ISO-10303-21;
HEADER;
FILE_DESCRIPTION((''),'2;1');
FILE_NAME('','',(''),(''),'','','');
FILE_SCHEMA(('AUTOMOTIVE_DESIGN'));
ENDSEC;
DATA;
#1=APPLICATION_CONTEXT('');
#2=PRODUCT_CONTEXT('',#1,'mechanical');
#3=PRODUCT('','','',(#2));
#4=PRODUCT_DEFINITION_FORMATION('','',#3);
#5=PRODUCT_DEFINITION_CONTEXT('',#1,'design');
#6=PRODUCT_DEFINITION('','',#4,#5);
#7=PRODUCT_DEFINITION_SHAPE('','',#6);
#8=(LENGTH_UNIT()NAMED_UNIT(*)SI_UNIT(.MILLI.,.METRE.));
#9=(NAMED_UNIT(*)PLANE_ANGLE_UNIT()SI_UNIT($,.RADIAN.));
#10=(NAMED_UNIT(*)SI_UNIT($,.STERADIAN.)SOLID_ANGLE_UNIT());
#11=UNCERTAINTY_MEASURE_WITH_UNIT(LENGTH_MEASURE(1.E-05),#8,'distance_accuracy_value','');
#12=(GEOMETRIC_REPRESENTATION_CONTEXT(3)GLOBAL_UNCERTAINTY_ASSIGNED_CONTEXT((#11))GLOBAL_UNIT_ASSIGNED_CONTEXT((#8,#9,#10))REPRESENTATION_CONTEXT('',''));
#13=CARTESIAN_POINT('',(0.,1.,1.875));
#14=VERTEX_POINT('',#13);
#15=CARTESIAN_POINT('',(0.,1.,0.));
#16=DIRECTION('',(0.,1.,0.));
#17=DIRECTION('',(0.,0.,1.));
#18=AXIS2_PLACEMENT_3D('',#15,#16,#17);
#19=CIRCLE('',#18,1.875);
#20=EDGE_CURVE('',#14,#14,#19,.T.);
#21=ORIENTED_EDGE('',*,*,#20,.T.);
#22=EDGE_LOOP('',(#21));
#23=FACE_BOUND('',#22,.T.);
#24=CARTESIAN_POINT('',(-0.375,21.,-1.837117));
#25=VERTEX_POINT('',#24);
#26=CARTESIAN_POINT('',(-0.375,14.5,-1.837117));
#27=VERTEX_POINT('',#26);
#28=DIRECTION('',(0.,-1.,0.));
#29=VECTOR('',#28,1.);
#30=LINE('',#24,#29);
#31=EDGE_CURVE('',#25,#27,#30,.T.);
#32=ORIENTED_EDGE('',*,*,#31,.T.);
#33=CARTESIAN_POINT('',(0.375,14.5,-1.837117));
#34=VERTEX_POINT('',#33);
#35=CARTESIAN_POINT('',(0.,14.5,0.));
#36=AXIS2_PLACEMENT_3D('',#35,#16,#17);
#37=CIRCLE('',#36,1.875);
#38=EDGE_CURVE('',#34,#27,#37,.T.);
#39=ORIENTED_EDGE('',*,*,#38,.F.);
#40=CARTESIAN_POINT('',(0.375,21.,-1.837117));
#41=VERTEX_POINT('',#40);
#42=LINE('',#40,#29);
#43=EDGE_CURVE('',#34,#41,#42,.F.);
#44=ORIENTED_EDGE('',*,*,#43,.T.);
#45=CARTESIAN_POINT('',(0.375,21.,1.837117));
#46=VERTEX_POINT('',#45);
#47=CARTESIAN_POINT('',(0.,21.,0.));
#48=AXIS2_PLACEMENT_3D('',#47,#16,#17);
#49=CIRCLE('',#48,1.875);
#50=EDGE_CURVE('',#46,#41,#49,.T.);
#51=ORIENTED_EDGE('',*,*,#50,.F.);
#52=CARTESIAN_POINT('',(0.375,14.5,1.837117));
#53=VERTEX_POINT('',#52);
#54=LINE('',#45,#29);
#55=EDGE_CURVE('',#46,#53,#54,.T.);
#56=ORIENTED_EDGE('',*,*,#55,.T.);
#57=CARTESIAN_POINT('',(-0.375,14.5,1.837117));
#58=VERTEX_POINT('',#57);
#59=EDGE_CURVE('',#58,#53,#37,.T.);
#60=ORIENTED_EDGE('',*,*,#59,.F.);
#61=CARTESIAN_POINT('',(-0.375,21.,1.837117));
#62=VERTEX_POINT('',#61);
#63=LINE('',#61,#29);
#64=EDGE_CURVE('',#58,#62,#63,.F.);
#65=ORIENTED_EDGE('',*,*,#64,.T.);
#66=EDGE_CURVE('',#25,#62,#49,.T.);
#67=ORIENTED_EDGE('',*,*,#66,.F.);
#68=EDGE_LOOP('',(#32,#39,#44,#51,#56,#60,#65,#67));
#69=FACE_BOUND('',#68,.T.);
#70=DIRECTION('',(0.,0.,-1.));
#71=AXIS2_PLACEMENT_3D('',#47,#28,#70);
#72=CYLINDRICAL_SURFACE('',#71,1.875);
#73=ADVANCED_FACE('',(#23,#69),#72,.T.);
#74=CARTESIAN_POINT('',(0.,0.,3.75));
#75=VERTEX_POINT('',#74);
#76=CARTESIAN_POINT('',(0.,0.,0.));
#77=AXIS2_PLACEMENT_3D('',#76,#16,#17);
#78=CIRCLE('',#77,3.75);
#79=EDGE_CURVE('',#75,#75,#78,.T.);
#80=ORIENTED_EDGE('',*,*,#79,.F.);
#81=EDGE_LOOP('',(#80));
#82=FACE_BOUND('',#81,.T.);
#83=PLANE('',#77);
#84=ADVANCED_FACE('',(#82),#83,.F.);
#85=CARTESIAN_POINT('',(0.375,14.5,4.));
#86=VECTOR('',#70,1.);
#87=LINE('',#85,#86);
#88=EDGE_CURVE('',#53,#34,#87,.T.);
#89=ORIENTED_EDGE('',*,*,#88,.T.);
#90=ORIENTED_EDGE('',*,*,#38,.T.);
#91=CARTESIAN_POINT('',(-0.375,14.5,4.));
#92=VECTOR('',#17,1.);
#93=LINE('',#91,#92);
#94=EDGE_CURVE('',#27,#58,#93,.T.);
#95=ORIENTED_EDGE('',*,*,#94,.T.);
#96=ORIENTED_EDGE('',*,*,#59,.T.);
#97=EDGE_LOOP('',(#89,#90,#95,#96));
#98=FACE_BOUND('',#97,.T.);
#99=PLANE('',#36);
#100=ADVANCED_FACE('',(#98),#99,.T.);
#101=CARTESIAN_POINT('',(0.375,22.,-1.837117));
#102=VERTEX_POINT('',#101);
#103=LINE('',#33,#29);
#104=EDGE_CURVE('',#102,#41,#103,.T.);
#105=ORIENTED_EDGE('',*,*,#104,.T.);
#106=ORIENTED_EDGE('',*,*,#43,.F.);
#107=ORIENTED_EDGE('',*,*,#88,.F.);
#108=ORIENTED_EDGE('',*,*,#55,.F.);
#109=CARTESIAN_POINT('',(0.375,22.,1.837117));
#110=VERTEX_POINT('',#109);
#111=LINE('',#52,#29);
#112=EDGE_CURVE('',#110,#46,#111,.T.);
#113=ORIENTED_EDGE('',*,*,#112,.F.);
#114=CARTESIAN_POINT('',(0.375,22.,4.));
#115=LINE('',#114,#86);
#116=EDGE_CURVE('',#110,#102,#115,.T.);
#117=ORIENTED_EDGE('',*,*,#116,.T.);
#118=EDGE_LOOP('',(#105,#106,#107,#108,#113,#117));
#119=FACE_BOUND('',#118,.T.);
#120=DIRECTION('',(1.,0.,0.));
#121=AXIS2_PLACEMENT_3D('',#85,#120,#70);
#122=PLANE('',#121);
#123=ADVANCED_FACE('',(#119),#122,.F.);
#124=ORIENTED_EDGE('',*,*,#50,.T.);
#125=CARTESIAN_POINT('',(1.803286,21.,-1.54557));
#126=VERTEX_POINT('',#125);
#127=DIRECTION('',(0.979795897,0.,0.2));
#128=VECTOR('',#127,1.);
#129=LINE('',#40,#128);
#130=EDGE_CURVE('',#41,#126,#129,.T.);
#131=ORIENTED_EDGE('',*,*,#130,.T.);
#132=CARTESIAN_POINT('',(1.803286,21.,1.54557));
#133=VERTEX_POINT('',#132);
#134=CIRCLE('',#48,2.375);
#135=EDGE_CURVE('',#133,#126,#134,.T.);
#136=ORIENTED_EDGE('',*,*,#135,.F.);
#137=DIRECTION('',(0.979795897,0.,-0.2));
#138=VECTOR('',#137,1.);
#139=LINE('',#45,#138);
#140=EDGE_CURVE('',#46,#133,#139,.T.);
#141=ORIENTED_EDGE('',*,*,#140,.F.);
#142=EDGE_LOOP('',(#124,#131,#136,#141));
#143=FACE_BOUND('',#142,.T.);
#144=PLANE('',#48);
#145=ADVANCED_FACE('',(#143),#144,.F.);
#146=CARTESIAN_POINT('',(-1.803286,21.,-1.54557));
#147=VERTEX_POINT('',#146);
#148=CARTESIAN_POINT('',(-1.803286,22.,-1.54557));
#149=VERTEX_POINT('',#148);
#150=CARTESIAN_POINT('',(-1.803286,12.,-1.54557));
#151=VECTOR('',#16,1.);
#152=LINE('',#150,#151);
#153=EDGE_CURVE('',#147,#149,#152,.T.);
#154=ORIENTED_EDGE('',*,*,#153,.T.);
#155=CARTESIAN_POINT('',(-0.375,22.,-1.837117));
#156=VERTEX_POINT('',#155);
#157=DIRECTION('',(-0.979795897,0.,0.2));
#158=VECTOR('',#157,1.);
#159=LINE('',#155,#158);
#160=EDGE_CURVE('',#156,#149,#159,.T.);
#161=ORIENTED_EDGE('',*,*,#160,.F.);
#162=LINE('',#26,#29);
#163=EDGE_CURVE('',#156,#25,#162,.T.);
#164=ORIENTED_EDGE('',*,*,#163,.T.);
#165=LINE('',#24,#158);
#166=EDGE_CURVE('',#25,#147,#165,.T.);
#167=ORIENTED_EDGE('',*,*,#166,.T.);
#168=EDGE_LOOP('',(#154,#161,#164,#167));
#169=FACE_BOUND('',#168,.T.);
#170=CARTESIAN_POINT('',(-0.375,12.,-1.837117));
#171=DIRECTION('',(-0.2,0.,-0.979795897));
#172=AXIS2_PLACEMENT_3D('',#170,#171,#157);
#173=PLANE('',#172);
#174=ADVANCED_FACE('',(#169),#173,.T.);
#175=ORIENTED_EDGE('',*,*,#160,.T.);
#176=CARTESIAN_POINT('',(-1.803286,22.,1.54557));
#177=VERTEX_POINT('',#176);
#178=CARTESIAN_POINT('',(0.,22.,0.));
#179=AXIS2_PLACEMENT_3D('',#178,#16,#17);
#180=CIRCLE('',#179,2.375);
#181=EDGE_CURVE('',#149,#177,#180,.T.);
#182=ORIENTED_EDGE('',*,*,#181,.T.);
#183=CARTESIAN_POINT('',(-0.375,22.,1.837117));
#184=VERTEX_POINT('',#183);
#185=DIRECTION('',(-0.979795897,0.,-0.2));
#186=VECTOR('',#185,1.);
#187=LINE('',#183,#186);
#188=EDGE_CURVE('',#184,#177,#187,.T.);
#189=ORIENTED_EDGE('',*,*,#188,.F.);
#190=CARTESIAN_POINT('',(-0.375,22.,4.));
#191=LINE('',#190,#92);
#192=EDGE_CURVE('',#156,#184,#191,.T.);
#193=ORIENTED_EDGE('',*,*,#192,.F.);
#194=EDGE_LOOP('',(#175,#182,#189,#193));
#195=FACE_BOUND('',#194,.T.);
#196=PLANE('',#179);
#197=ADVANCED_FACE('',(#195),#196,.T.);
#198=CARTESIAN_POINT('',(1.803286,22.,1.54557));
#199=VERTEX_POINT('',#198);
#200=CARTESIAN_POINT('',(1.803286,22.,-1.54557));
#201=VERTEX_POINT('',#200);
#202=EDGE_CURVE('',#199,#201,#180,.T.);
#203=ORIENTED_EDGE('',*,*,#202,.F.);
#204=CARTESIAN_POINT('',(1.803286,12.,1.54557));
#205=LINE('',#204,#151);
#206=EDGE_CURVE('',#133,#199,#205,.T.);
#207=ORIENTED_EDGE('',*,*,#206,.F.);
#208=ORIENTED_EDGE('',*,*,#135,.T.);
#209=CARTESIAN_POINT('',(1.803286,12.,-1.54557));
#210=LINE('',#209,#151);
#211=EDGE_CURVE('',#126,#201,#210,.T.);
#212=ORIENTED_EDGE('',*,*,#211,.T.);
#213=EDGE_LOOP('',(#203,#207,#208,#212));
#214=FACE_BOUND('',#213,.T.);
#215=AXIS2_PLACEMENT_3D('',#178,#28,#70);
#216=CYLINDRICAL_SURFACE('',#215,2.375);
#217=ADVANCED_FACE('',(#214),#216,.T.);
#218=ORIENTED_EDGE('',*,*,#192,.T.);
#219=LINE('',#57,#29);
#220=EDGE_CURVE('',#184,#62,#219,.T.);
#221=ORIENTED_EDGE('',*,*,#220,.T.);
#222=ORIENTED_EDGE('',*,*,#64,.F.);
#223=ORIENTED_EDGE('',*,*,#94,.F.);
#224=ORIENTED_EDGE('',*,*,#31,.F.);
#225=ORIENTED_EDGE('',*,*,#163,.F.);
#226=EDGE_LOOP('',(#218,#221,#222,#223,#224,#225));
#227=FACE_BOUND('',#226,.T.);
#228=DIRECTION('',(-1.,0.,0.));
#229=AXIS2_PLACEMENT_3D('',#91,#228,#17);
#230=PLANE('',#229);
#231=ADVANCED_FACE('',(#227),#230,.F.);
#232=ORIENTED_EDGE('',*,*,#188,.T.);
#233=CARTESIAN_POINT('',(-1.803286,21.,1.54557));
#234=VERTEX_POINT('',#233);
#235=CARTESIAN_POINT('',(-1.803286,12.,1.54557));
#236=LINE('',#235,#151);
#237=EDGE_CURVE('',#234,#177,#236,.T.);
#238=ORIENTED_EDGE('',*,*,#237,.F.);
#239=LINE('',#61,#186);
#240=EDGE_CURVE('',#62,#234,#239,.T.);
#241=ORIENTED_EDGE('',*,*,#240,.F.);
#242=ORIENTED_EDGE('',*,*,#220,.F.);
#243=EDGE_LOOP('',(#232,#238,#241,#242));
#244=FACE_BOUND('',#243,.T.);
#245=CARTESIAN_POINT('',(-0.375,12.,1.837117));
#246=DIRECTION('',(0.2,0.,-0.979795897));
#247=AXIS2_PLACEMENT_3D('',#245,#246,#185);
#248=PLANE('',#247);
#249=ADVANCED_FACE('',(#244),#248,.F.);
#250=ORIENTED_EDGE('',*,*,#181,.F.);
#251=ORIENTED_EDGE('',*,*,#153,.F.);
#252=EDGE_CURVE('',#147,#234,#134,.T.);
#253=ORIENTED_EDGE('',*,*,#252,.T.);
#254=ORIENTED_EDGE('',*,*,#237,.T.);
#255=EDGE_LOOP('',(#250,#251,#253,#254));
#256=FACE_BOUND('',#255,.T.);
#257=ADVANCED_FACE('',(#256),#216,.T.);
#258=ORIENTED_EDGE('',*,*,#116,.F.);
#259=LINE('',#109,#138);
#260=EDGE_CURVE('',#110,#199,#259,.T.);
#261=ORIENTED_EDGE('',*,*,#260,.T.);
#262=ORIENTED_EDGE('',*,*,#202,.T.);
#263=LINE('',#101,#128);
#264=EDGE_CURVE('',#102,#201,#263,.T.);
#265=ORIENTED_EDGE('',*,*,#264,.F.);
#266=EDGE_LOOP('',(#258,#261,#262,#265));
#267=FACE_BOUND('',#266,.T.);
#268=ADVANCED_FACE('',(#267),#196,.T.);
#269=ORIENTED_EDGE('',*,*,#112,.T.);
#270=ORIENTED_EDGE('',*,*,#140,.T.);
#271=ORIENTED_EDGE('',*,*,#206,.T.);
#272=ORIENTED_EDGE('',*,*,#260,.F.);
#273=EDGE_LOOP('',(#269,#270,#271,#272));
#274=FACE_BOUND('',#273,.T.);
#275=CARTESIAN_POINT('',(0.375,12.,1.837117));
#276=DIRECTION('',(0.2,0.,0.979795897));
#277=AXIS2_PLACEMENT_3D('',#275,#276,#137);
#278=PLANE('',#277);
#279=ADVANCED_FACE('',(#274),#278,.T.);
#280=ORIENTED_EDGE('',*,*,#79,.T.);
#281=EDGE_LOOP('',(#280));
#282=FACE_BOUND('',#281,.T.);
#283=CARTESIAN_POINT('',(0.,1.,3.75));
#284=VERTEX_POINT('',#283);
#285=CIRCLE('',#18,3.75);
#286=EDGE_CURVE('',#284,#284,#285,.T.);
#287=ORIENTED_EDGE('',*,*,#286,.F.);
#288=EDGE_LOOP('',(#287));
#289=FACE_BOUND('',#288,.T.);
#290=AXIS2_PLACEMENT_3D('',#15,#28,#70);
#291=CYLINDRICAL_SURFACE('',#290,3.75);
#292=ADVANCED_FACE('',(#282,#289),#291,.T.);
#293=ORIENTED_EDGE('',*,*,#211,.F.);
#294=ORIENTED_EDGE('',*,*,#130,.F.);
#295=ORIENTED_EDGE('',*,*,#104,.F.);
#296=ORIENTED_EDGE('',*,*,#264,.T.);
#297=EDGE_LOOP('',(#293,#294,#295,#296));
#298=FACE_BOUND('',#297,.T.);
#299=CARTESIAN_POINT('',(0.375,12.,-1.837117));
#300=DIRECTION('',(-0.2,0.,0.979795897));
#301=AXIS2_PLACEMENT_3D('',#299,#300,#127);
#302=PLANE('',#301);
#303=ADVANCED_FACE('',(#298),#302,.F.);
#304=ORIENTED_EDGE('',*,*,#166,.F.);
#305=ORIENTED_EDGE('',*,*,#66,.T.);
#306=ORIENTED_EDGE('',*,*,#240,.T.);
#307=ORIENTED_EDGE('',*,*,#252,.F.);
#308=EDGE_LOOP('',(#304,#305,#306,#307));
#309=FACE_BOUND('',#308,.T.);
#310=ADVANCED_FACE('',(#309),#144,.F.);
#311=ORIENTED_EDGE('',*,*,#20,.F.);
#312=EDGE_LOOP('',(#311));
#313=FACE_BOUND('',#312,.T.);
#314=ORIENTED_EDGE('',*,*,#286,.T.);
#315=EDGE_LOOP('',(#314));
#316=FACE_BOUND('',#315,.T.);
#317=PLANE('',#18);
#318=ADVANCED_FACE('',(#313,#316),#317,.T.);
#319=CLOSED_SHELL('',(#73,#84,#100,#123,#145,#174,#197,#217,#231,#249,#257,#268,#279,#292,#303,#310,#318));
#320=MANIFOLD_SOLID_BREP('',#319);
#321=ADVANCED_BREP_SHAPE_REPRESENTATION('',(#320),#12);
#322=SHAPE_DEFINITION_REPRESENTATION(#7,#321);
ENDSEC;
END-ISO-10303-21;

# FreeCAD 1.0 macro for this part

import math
import FreeCAD as App
import Part
import Sketcher
from FreeCAD import Vector

doc = App.newDocument("Part")
body = doc.addObject("PartDesign::Body", "Body")

# Sketch on XZ plane
sketch1 = doc.addObject("Sketcher::SketchObject", "Sketch")
body.addObject(sketch1)
sketch1.AttachmentSupport = (doc.XZ_Plane, [""])
sketch1.MapMode = "FlatFace"
sketch1.addGeometry(Part.Circle(Vector(0, 0, 0), Vector(0, 0, 1), 3.8), False)
sketch1.addConstraint([
    Sketcher.Constraint("Coincident", 0, 3, -1, 1),
    Sketcher.Constraint("Diameter", 0, 7.5),
])
pad1 = doc.addObject("PartDesign::Pad", "Pad")
body.addObject(pad1)
pad1.Profile = sketch1
pad1.Length = 1
pad1.Reversed = True

# Sketch on XZ plane
sketch2 = doc.addObject("Sketcher::SketchObject", "Sketch001")
body.addObject(sketch2)
sketch2.AttachmentSupport = (doc.XZ_Plane, [""])
sketch2.MapMode = "FlatFace"
sketch2.AttachmentOffset = App.Placement(Vector(0, 0, -1), App.Rotation())
sketch2.addGeometry(Part.Circle(Vector(0, 0, 0), Vector(0, 0, 1), 1.9), False)
sketch2.addConstraint([
    Sketcher.Constraint("Coincident", 0, 3, -1, 1),
    Sketcher.Constraint("Diameter", 0, 3.75),
])
pad2 = doc.addObject("PartDesign::Pad", "Pad001")
body.addObject(pad2)
pad2.Profile = sketch2
pad2.Length = 20
pad2.Reversed = True

# Sketch on XZ plane
sketch3 = doc.addObject("Sketcher::SketchObject", "Sketch002")
body.addObject(sketch3)
sketch3.AttachmentSupport = (doc.XZ_Plane, [""])
sketch3.MapMode = "FlatFace"
sketch3.AttachmentOffset = App.Placement(Vector(0, 0, -21), App.Rotation())
sketch3.addGeometry(Part.Circle(Vector(0, 0, 0), Vector(0, 0, 1), 2.4), False)
sketch3.addConstraint([
    Sketcher.Constraint("Coincident", 0, 3, -1, 1),
    Sketcher.Constraint("Diameter", 0, 4.75),
])
pad3 = doc.addObject("PartDesign::Pad", "Pad002")
body.addObject(pad3)
pad3.Profile = sketch3
pad3.Length = 1
pad3.Reversed = True

# Sketch on XZ plane
sketch4 = doc.addObject("Sketcher::SketchObject", "Sketch003")
body.addObject(sketch4)
sketch4.AttachmentSupport = (doc.XZ_Plane, [""])
sketch4.MapMode = "FlatFace"
sketch4.AttachmentOffset = App.Placement(Vector(0, 0, -22), App.Rotation())
sketch4.addGeometry([
    Part.LineSegment(Vector(-0.4, -4, 0), Vector(-0.4, 4, 0)),
    Part.LineSegment(Vector(-0.4, 4, 0), Vector(0.4, 4, 0)),
    Part.LineSegment(Vector(0.4, 4, 0), Vector(0.4, -4, 0)),
    Part.LineSegment(Vector(0.4, -4, 0), Vector(-0.4, -4, 0)),
], False)
sketch4.addConstraint([
    Sketcher.Constraint("Coincident", 0, 2, 1, 1),
    Sketcher.Constraint("Coincident", 1, 2, 2, 1),
    Sketcher.Constraint("Coincident", 2, 2, 3, 1),
    Sketcher.Constraint("Coincident", 3, 2, 0, 1),
    Sketcher.Constraint("Vertical", 0),
    Sketcher.Constraint("Horizontal", 1),
    Sketcher.Constraint("Vertical", 2),
    Sketcher.Constraint("Horizontal", 3),
    Sketcher.Constraint("Symmetric", 0, 2, 2, 2, -1, 1),
    Sketcher.Constraint("DistanceY", 0, 1, 0, 2, 8.0),
    Sketcher.Constraint("DistanceX", 1, 1, 1, 2, 0.75),
])
pocket1 = doc.addObject("PartDesign::Pocket", "Pocket")
body.addObject(pocket1)
pocket1.Profile = sketch4
pocket1.Length = 7.5
pocket1.Reversed = True

# Sketch on XZ plane
sketch5 = doc.addObject("Sketcher::SketchObject", "Sketch004")
body.addObject(sketch5)
sketch5.AttachmentSupport = (doc.XZ_Plane, [""])
sketch5.MapMode = "FlatFace"
sketch5.AttachmentOffset = App.Placement(Vector(0, 0, -12), App.Rotation())
sketch5.addGeometry([
    Part.LineSegment(Vector(1.8, 1.5, 0), Vector(0.4, 1.8, 0)),  # 0
    Part.LineSegment(Vector(0.4, 1.8, 0), Vector(0.4, 2.3, 0)),  # 1
    Part.ArcOfCircle(Part.Circle(Vector(0, 0, 0), Vector(0, 0, 1), 2.4), math.radians(41), math.radians(81)),  # 2
    Part.LineSegment(Vector(0.4, -2.3, 0), Vector(0.4, -1.8, 0)),  # 3
    Part.LineSegment(Vector(0.4, -1.8, 0), Vector(1.8, -1.5, 0)),  # 4
    Part.ArcOfCircle(Part.Circle(Vector(0, 0, 0), Vector(0, 0, 1), 2.4), math.radians(-81), math.radians(-41)),  # 5
    Part.LineSegment(Vector(-1.8, -1.5, 0), Vector(-0.4, -1.8, 0)),  # 6
    Part.LineSegment(Vector(-0.4, -1.8, 0), Vector(-0.4, -2.3, 0)),  # 7
    Part.ArcOfCircle(Part.Circle(Vector(0, 0, 0), Vector(0, 0, 1), 2.4), math.radians(-139), math.radians(-99)),  # 8
    Part.LineSegment(Vector(-0.4, 2.3, 0), Vector(-0.4, 1.8, 0)),  # 9
    Part.LineSegment(Vector(-0.4, 1.8, 0), Vector(-1.8, 1.5, 0)),  # 10
    Part.ArcOfCircle(Part.Circle(Vector(0, 0, 0), Vector(0, 0, 1), 2.4), math.radians(99), math.radians(139)),  # 11
], False)
sketch5.addConstraint([
    Sketcher.Constraint("Coincident", 0, 2, 1, 1),
    Sketcher.Constraint("Coincident", 1, 2, 2, 2),
    Sketcher.Constraint("Coincident", 2, 1, 0, 1),
    Sketcher.Constraint("Coincident", 3, 2, 4, 1),
    Sketcher.Constraint("Coincident", 4, 2, 5, 2),
    Sketcher.Constraint("Coincident", 5, 1, 3, 1),
    Sketcher.Constraint("Coincident", 6, 2, 7, 1),
    Sketcher.Constraint("Coincident", 7, 2, 8, 2),
    Sketcher.Constraint("Coincident", 8, 1, 6, 1),
    Sketcher.Constraint("Coincident", 9, 2, 10, 1),
    Sketcher.Constraint("Coincident", 10, 2, 11, 2),
    Sketcher.Constraint("Coincident", 11, 1, 9, 1),
    Sketcher.Constraint("Vertical", 1),
    Sketcher.Constraint("Vertical", 3),
    Sketcher.Constraint("Vertical", 7),
    Sketcher.Constraint("Vertical", 9),
    Sketcher.Constraint("Coincident", 2, 3, -1, 1),
    Sketcher.Constraint("Coincident", 5, 3, -1, 1),
    Sketcher.Constraint("Coincident", 8, 3, -1, 1),
    Sketcher.Constraint("Coincident", 11, 3, -1, 1),
    Sketcher.Constraint("Equal", 2, 5),
    Sketcher.Constraint("Equal", 5, 8),
    Sketcher.Constraint("Equal", 8, 11),
    Sketcher.Constraint("Symmetric", 0, 2, 6, 2, -1, 1),
    Sketcher.Constraint("Symmetric", 3, 2, 9, 2, -1, 1),
    Sketcher.Constraint("Symmetric", 3, 2, 6, 2, -2),
    Sketcher.Constraint("Parallel", 0, 6),
    Sketcher.Constraint("Parallel", 4, 10),
    Sketcher.Constraint("Horizontal", 4, 2, 8, 1),
    Sketcher.Constraint("Radius", 2, 2.375),
    Sketcher.Constraint("DistanceX", 6, 2, 3, 2, 0.75),
    Sketcher.Constraint("DistanceY", 1, 1, 1, 2, 0.508091),
    Sketcher.Constraint("DistanceY", -1, 1, 2, 1, 1.54557),
])
pocket2 = doc.addObject("PartDesign::Pocket", "Pocket001")
body.addObject(pocket2)
pocket2.Profile = sketch5
pocket2.Length = 10

doc.recompute()
